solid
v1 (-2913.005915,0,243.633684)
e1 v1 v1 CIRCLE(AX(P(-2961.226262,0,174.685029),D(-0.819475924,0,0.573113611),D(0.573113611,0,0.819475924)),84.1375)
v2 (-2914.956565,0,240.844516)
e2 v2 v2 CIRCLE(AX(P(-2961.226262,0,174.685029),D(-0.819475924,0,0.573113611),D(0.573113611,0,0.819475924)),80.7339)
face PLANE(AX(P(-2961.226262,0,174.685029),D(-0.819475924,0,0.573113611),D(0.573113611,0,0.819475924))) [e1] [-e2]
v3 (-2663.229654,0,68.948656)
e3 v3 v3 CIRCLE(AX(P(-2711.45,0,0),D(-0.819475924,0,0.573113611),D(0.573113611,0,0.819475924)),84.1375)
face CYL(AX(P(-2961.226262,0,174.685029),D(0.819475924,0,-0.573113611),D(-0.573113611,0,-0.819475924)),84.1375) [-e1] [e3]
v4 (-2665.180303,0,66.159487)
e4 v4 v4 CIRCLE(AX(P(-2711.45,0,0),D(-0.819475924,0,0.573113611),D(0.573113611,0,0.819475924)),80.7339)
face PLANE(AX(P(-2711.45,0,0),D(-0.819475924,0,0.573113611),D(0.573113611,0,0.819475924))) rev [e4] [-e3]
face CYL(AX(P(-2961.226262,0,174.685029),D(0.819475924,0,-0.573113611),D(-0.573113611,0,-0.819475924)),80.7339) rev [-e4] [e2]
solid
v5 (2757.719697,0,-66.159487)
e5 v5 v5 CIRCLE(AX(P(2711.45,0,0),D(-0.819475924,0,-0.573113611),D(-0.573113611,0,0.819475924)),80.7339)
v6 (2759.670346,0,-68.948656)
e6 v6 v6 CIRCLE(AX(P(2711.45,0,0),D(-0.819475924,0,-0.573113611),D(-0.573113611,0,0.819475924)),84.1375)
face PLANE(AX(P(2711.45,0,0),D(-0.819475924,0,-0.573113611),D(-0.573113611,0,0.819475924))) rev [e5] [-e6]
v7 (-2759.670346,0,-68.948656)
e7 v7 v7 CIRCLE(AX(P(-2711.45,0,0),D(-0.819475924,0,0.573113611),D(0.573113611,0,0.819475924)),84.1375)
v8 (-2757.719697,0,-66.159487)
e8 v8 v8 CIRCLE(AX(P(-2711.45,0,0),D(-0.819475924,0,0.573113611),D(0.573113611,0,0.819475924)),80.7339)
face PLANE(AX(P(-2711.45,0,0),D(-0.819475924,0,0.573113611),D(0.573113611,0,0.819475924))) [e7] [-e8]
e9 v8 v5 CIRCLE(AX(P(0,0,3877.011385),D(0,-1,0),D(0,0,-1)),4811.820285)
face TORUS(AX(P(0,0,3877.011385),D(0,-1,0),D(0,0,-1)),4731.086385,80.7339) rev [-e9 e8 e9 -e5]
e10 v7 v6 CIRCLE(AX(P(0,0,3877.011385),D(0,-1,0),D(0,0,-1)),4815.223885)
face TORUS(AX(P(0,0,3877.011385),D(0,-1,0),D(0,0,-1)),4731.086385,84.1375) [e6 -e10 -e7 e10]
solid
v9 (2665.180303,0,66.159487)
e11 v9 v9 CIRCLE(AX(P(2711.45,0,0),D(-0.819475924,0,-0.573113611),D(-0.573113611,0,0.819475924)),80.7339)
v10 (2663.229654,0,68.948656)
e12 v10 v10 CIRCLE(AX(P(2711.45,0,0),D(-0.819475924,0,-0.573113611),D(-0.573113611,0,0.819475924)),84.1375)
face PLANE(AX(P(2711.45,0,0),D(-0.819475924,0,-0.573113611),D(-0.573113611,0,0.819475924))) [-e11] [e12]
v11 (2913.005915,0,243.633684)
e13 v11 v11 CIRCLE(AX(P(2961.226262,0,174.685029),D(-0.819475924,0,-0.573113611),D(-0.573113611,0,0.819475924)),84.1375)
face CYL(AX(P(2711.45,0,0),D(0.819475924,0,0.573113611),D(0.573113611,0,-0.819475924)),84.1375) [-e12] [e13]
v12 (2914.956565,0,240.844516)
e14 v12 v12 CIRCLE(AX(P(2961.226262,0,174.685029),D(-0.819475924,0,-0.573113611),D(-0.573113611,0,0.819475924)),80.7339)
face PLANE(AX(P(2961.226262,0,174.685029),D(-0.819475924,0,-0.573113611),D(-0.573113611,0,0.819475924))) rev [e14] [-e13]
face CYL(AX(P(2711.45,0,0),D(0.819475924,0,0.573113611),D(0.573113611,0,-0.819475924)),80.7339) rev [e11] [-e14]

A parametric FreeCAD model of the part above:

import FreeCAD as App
import Part
import Sketcher
Q = App.Units.Quantity

doc = App.newDocument("Part")
body = doc.addObject("PartDesign::Body", "Body")

# Sketch on an angled plane
sketch1 = body.newObject("Sketcher::SketchObject", "Sketch")
sketch1.Placement = App.Placement(App.Vector(2711.45, 0, 0), App.Rotation(App.Vector(-0.573113611, 0, 0.819475924), App.Vector(0, 1.000000001, 0), App.Vector(-0.819475924, 0, -0.573113611), "ZXY"))
sketch1.addGeometry(Part.Circle(App.Vector(0, 0, 0), App.Vector(0, 0, 1), 84), False)
sketch1.addGeometry(Part.Circle(App.Vector(0, 0, 0), App.Vector(0, 0, 1), 81), False)
sketch1.addConstraint(Sketcher.Constraint("Coincident", 0, 3, -1, 1))
sketch1.addConstraint(Sketcher.Constraint("Coincident", 1, 3, -1, 1))
sketch1.addConstraint(Sketcher.Constraint("Diameter", 0, Q("6.625 in")))
sketch1.addConstraint(Sketcher.Constraint("Diameter", 1, Q("6.357 in")))
pad1 = body.newObject("PartDesign::Pad", "Pad")
pad1.Profile = sketch1
pad1.Length = Q("12 in")
pad1.Reversed = True
body2 = doc.addObject("PartDesign::Body", "Body001")

# Sketch on an angled plane
sketch2 = body2.newObject("Sketcher::SketchObject", "Sketch001")
sketch2.Placement = App.Placement(App.Vector(2711.45, 0, 0), App.Rotation(App.Vector(0.573113611, 0, -0.819475924), App.Vector(0, 1.000000001, 0), App.Vector(0.819475924, 0, 0.573113611), "ZXY"))
sketch2.addGeometry(Part.Circle(App.Vector(0, 0, 0), App.Vector(0, 0, 1), 84), False)
sketch2.addGeometry(Part.Circle(App.Vector(0, 0, 0), App.Vector(0, 0, 1), 81), False)
sketch2.addGeometry(Part.LineSegment(App.Vector(-4731, 0, 0), App.Vector(-4731, 10, 0)), True)  # axis
sketch2.addConstraint(Sketcher.Constraint("Vertical", 2))
sketch2.addConstraint(Sketcher.Constraint("Coincident", 0, 3, -1, 1))
sketch2.addConstraint(Sketcher.Constraint("Coincident", 1, 3, -1, 1))
sketch2.addConstraint(Sketcher.Constraint("PointOnObject", 2, 1, -1))
sketch2.addConstraint(Sketcher.Constraint("Diameter", 0, Q("6.625 in")))
sketch2.addConstraint(Sketcher.Constraint("Diameter", 1, Q("6.357 in")))
sketch2.addConstraint(Sketcher.Constraint("DistanceY", 2, 1, 2, 2, 10.0))
sketch2.addConstraint(Sketcher.Constraint("DistanceX", 2, 1, -1, 1, 4731.086387))
revolution = body2.newObject("PartDesign::Revolution", "Revolution")
revolution.Profile = sketch2
revolution.ReferenceAxis = (sketch2, ["Axis0"])
revolution.Angle = 69.935268
body3 = doc.addObject("PartDesign::Body", "Body002")

# Sketch on an angled plane
sketch3 = body3.newObject("Sketcher::SketchObject", "Sketch002")
sketch3.Placement = App.Placement(App.Vector(-2961.226262, 0, 174.685029), App.Rotation(App.Vector(-0.573113611, 0, -0.819475924), App.Vector(0, 1.000000001, 0), App.Vector(0.819475924, 0, -0.573113611), "ZXY"))
sketch3.addGeometry(Part.Circle(App.Vector(0, 0, 0), App.Vector(0, 0, 1), 84), False)
sketch3.addGeometry(Part.Circle(App.Vector(0, 0, 0), App.Vector(0, 0, 1), 81), False)
sketch3.addConstraint(Sketcher.Constraint("Coincident", 0, 3, -1, 1))
sketch3.addConstraint(Sketcher.Constraint("Coincident", 1, 3, -1, 1))
sketch3.addConstraint(Sketcher.Constraint("Diameter", 0, Q("6.625 in")))
sketch3.addConstraint(Sketcher.Constraint("Diameter", 1, Q("6.357 in")))
pad2 = body3.newObject("PartDesign::Pad", "Pad001")
pad2.Profile = sketch3
pad2.Length = Q("12 in")

doc.recompute()
